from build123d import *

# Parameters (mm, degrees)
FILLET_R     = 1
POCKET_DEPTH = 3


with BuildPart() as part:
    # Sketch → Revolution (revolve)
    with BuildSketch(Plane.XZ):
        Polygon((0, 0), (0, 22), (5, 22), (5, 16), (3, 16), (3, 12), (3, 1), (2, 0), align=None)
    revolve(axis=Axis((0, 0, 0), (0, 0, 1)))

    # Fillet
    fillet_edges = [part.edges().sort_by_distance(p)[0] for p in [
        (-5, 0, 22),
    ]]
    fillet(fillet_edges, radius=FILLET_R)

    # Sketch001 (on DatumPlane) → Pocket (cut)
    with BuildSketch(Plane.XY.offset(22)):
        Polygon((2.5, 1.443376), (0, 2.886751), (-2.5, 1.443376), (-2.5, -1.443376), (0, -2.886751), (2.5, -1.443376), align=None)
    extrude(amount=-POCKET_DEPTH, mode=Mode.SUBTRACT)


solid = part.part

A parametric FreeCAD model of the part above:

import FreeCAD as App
import Part
import Sketcher
from FreeCAD import Vector
Q = App.Units.Quantity


def edges_at(feature, points):
    """Names of the edges that pass closest to the given points."""
    edges = feature.Shape.Edges
    near = lambda p: min(range(len(edges)), key=lambda i: edges[i].distToShape(Part.Vertex(*p))[0])
    return sorted({f"Edge{near(p) + 1}" for p in points})


def add_polygon(sketch, points):
    """Adds a closed chain of lines whose ends are joined by coincident constraints."""
    first, n = sketch.GeometryCount, len(points)
    for a, b in zip(points, points[1:] + points[:1]):
        sketch.addGeometry(Part.LineSegment(App.Vector(*a, 0), App.Vector(*b, 0)), False)
    for i in range(n):
        sketch.addConstraint(Sketcher.Constraint("Coincident", first + i, 2, first + (i + 1) % n, 1))

doc = App.newDocument("Part")
body = doc.addObject("PartDesign::Body", "Body")

# Sketch on XZ plane
sketch1 = body.newObject("Sketcher::SketchObject", "Sketch")
sketch1.AttachmentSupport = (doc.getObject("XZ_Plane"), [""])
sketch1.MapMode = "FlatFace"
add_polygon(sketch1, [(0, 22), (0, 0), (2, 0), (3, 1), (3, 16), (5, 16), (5, 22)])  # lines 0-6
sketch1.addConstraint(Sketcher.Constraint("Vertical", 0))
sketch1.addConstraint(Sketcher.Constraint("Horizontal", 1))
sketch1.addConstraint(Sketcher.Constraint("Vertical", 3))
sketch1.addConstraint(Sketcher.Constraint("Horizontal", 4))
sketch1.addConstraint(Sketcher.Constraint("Vertical", 5))
sketch1.addConstraint(Sketcher.Constraint("Horizontal", 6))
sketch1.addConstraint(Sketcher.Constraint("Coincident", 0, 2, -1, 1))
sketch1.addConstraint(Sketcher.Constraint("Equal", 1, 4))
sketch1.addConstraint(Sketcher.Constraint("DistanceX", 1, 1, 1, 2, Q("2 mm")))
sketch1.addConstraint(Sketcher.Constraint("DistanceX", 6, 2, 6, 1, Q("5 mm")))
sketch1.addConstraint(Sketcher.Constraint("DistanceY", 0, 2, 0, 1, Q("22 mm")))
sketch1.addConstraint(Sketcher.Constraint("DistanceY", 3, 1, 3, 2, Q("15 mm")))
sketch1.addConstraint(Sketcher.Constraint("DistanceY", 5, 1, 5, 2, Q("6 mm")))
revolution = body.newObject("PartDesign::Revolution", "Revolution")
revolution.Profile = sketch1
revolution.ReferenceAxis = (sketch1, ["V_Axis"])
revolution.Angle = 360
doc.recompute()

fillet = body.newObject("PartDesign::Fillet", "Fillet")
fillet.Base = (revolution, edges_at(revolution, [(-5, 0, 22)]))
fillet.Radius = 1

# Sketch on XY plane
sketch2 = body.newObject("Sketcher::SketchObject", "Sketch001")
sketch2.AttachmentSupport = (doc.getObject("XY_Plane"), [""])
sketch2.MapMode = "FlatFace"
sketch2.AttachmentOffset = App.Placement(Vector(0, 0, 22), App.Rotation())
add_polygon(sketch2, [(2.5, 1.443376), (0, 2.886751), (-2.5, 1.443376), (-2.5, -1.443376), (0, -2.886751), (2.5, -1.443376)])  # lines 0-5
sketch2.addConstraint(Sketcher.Constraint("Vertical", 2))
sketch2.addConstraint(Sketcher.Constraint("Vertical", 5))
sketch2.addConstraint(Sketcher.Constraint("Symmetric", 0, 2, 3, 2, -1, 1))
sketch2.addConstraint(Sketcher.Constraint("Symmetric", 1, 2, 4, 2, -1, 1))
sketch2.addConstraint(Sketcher.Constraint("PointOnObject", 0, 2, -2))
sketch2.addConstraint(Sketcher.Constraint("Parallel", 0, 3))
sketch2.addConstraint(Sketcher.Constraint("Horizontal", 2, 2, 4, 2))
sketch2.addConstraint(Sketcher.Constraint("Angle", 0, Q("150.000012 deg")))
sketch2.addConstraint(Sketcher.Constraint("DistanceX", 2, 2, 4, 2, Q("5 mm")))
sketch2.addConstraint(Sketcher.Constraint("DistanceY", 2, 2, 2, 1, Q("2.886752 mm")))
pocket1 = body.newObject("PartDesign::Pocket", "Pocket")
pocket1.Profile = sketch2
pocket1.Length = 3

doc.recompute()
